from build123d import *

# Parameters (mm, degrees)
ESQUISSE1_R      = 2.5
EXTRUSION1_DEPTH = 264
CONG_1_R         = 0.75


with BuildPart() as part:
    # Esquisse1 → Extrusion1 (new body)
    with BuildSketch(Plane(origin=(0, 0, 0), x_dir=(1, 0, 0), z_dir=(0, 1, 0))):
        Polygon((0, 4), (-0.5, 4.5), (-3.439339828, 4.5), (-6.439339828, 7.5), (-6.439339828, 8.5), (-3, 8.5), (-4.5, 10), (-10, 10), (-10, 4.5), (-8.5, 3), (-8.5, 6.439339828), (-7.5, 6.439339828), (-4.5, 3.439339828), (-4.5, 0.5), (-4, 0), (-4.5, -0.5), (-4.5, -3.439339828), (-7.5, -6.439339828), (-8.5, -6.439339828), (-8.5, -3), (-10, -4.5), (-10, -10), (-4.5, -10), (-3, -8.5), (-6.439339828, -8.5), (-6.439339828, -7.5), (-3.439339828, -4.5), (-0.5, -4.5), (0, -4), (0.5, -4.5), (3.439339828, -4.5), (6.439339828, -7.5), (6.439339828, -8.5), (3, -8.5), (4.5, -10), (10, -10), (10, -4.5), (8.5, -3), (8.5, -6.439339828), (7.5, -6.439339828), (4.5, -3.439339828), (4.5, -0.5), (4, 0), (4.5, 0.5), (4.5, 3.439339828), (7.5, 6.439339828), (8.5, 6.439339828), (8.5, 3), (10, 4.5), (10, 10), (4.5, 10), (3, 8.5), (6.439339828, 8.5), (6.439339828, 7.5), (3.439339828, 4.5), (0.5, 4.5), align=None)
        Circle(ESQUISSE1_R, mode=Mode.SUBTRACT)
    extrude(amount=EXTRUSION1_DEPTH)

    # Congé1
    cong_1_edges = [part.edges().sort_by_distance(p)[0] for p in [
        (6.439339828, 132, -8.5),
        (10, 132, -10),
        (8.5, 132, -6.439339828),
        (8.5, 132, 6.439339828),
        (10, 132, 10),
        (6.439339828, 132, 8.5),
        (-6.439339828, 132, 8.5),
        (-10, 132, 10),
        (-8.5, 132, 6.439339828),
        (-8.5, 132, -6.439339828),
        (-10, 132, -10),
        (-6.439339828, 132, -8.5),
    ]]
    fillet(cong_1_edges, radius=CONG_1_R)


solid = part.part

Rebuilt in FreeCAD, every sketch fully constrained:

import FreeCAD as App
import Part
import Sketcher
Q = App.Units.Quantity


def edges_at(feature, points):
    """Names of the edges that pass closest to the given points."""
    edges = feature.Shape.Edges
    near = lambda p: min(range(len(edges)), key=lambda i: edges[i].distToShape(Part.Vertex(*p))[0])
    return sorted({f"Edge{near(p) + 1}" for p in points})


def add_polygon(sketch, points):
    """Adds a closed chain of lines whose ends are joined by coincident constraints."""
    first, n = sketch.GeometryCount, len(points)
    for a, b in zip(points, points[1:] + points[:1]):
        sketch.addGeometry(Part.LineSegment(App.Vector(*a, 0), App.Vector(*b, 0)), False)
    for i in range(n):
        sketch.addConstraint(Sketcher.Constraint("Coincident", first + i, 2, first + (i + 1) % n, 1))

doc = App.newDocument("Part")
body = doc.addObject("PartDesign::Body", "Body")

# Sketch on XZ plane
sketch1 = body.newObject("Sketcher::SketchObject", "Sketch")
sketch1.AttachmentSupport = (doc.getObject("XZ_Plane"), [""])
sketch1.MapMode = "FlatFace"
add_polygon(sketch1, [(0, -4), (-0.5, -4.5), (-3.4, -4.5), (-6.4, -7.5), (-6.4, -8.5), (-3, -8.5), (-4.5, -10), (-10, -10), (-10, -4.5), (-8.5, -3), (-8.5, -6.4), (-7.5, -6.4), (-4.5, -3.4), (-4.5, -0.5), (-4, 0), (-4.5, 0.5), (-4.5, 3.4), (-7.5, 6.4), (-8.5, 6.4), (-8.5, 3), (-10, 4.5), (-10, 10), (-4.5, 10), (-3, 8.5), (-6.4, 8.5), (-6.4, 7.5), (-3.4, 4.5), (-0.5, 4.5), (0, 4), (0.5, 4.5), (3.4, 4.5), (6.4, 7.5), (6.4, 8.5), (3, 8.5), (4.5, 10), (10, 10), (10, 4.5), (8.5, 3), (8.5, 6.4), (7.5, 6.4), (4.5, 3.4), (4.5, 0.5), (4, 0), (4.5, -0.5), (4.5, -3.4), (7.5, -6.4), (8.5, -6.4), (8.5, -3), (10, -4.5), (10, -10), (4.5, -10), (3, -8.5), (6.4, -8.5), (6.4, -7.5), (3.4, -4.5), (0.5, -4.5)])  # lines 0-55
sketch1.addGeometry(Part.Circle(App.Vector(0, 0, 0), App.Vector(0, 0, 1), 2.5), False)  # 56
sketch1.addConstraint(Sketcher.Constraint("Horizontal", 1))
sketch1.addConstraint(Sketcher.Constraint("Vertical", 3))
sketch1.addConstraint(Sketcher.Constraint("Horizontal", 4))
sketch1.addConstraint(Sketcher.Constraint("Horizontal", 6))
sketch1.addConstraint(Sketcher.Constraint("Vertical", 7))
sketch1.addConstraint(Sketcher.Constraint("Vertical", 9))
sketch1.addConstraint(Sketcher.Constraint("Horizontal", 10))
sketch1.addConstraint(Sketcher.Constraint("Vertical", 12))
sketch1.addConstraint(Sketcher.Constraint("Vertical", 15))
sketch1.addConstraint(Sketcher.Constraint("Horizontal", 17))
sketch1.addConstraint(Sketcher.Constraint("Vertical", 18))
sketch1.addConstraint(Sketcher.Constraint("Vertical", 20))
sketch1.addConstraint(Sketcher.Constraint("Horizontal", 21))
sketch1.addConstraint(Sketcher.Constraint("Horizontal", 23))
sketch1.addConstraint(Sketcher.Constraint("Vertical", 24))
sketch1.addConstraint(Sketcher.Constraint("Horizontal", 26))
sketch1.addConstraint(Sketcher.Constraint("Horizontal", 29))
sketch1.addConstraint(Sketcher.Constraint("Vertical", 31))
sketch1.addConstraint(Sketcher.Constraint("Horizontal", 32))
sketch1.addConstraint(Sketcher.Constraint("Horizontal", 34))
sketch1.addConstraint(Sketcher.Constraint("Vertical", 35))
sketch1.addConstraint(Sketcher.Constraint("Vertical", 37))
sketch1.addConstraint(Sketcher.Constraint("Horizontal", 38))
sketch1.addConstraint(Sketcher.Constraint("Vertical", 40))
sketch1.addConstraint(Sketcher.Constraint("Vertical", 43))
sketch1.addConstraint(Sketcher.Constraint("Horizontal", 45))
sketch1.addConstraint(Sketcher.Constraint("Vertical", 46))
sketch1.addConstraint(Sketcher.Constraint("Vertical", 48))
sketch1.addConstraint(Sketcher.Constraint("Horizontal", 49))
sketch1.addConstraint(Sketcher.Constraint("Horizontal", 51))
sketch1.addConstraint(Sketcher.Constraint("Vertical", 52))
sketch1.addConstraint(Sketcher.Constraint("Horizontal", 54))
sketch1.addConstraint(Sketcher.Constraint("Coincident", 56, 3, -1, 1))
sketch1.addConstraint(Sketcher.Constraint("Symmetric", 0, 2, 28, 2, -1, 1))
sketch1.addConstraint(Sketcher.Constraint("Symmetric", 2, 2, 30, 2, -1, 1))
sketch1.addConstraint(Sketcher.Constraint("Symmetric", 4, 2, 32, 2, -1, 1))
sketch1.addConstraint(Sketcher.Constraint("Symmetric", 5, 2, 33, 2, -1, 1))
sketch1.addConstraint(Sketcher.Constraint("Symmetric", 7, 2, 35, 2, -1, 1))
sketch1.addConstraint(Sketcher.Constraint("Symmetric", 8, 2, 36, 2, -1, 1))
sketch1.addConstraint(Sketcher.Constraint("Symmetric", 10, 2, 38, 2, -1, 1))
sketch1.addConstraint(Sketcher.Constraint("Symmetric", 11, 2, 39, 2, -1, 1))
sketch1.addConstraint(Sketcher.Constraint("Symmetric", 13, 2, 41, 2, -1, 1))
sketch1.addConstraint(Sketcher.Constraint("Symmetric", 14, 2, 42, 2, -1, 1))
sketch1.addConstraint(Sketcher.Constraint("Symmetric", 16, 2, 44, 2, -1, 1))
sketch1.addConstraint(Sketcher.Constraint("Symmetric", 18, 2, 46, 2, -1, 1))
sketch1.addConstraint(Sketcher.Constraint("Symmetric", 19, 2, 47, 2, -1, 1))
sketch1.addConstraint(Sketcher.Constraint("Symmetric", 21, 2, 49, 2, -1, 1))
sketch1.addConstraint(Sketcher.Constraint("Symmetric", 22, 2, 50, 2, -1, 1))
sketch1.addConstraint(Sketcher.Constraint("Symmetric", 24, 2, 52, 2, -1, 1))
sketch1.addConstraint(Sketcher.Constraint("Symmetric", 25, 2, 53, 2, -1, 1))
sketch1.addConstraint(Sketcher.Constraint("Symmetric", 27, 2, 55, 2, -1, 1))
sketch1.addConstraint(Sketcher.Constraint("Symmetric", 26, 2, 28, 2, -2))
sketch1.addConstraint(Sketcher.Constraint("Symmetric", 24, 2, 30, 2, -2))
sketch1.addConstraint(Sketcher.Constraint("Symmetric", 22, 2, 32, 2, -2))
sketch1.addConstraint(Sketcher.Constraint("Symmetric", 21, 2, 33, 2, -2))
sketch1.addConstraint(Sketcher.Constraint("Symmetric", 19, 2, 35, 2, -2))
sketch1.addConstraint(Sketcher.Constraint("Symmetric", 18, 2, 36, 2, -2))
sketch1.addConstraint(Sketcher.Constraint("Symmetric", 16, 2, 38, 2, -2))
sketch1.addConstraint(Sketcher.Constraint("Symmetric", 15, 2, 39, 2, -2))
sketch1.addConstraint(Sketcher.Constraint("PointOnObject", 13, 2, -1))
sketch1.addConstraint(Sketcher.Constraint("PointOnObject", 27, 2, -2))
sketch1.addConstraint(Sketcher.Constraint("Parallel", 0, 2))
sketch1.addConstraint(Sketcher.Constraint("Parallel", 2, 5))
sketch1.addConstraint(Sketcher.Constraint("Parallel", 5, 8))
sketch1.addConstraint(Sketcher.Constraint("Parallel", 8, 11))
sketch1.addConstraint(Sketcher.Constraint("Parallel", 11, 13))
sketch1.addConstraint(Sketcher.Constraint("Perpendicular", 13, 14))
sketch1.addConstraint(Sketcher.Constraint("Parallel", 14, 16))
sketch1.addConstraint(Sketcher.Constraint("Parallel", 22, 25))
sketch1.addConstraint(Sketcher.Constraint("Parallel", 28, 30))
sketch1.addConstraint(Sketcher.Constraint("Parallel", 39, 41))
sketch1.addConstraint(Sketcher.Constraint("Parallel", 42, 44))
sketch1.addConstraint(Sketcher.Constraint("Parallel", 53, 55))
sketch1.addConstraint(Sketcher.Constraint("Horizontal", 1, 2, 7, 2))
sketch1.addConstraint(Sketcher.Constraint("Vertical", 5, 2, 11, 2))
sketch1.addConstraint(Sketcher.Constraint("Equal", 45, 3))
sketch1.addConstraint(Sketcher.Constraint("Equal", 49, 7))
sketch1.addConstraint(Sketcher.Constraint("Equal", 51, 9))
sketch1.addConstraint(Sketcher.Constraint("Equal", 54, 12))
sketch1.addConstraint(Sketcher.Constraint("Equal", 5, 8))
sketch1.addConstraint(Sketcher.Constraint("Equal", 0, 13))
sketch1.addConstraint(Sketcher.Constraint("Diameter", 56, Q("5 mm")))
sketch1.addConstraint(Sketcher.Constraint("DistanceX", 10, 1, 10, 2, Q("1 mm")))
sketch1.addConstraint(Sketcher.Constraint("DistanceX", 6, 2, 6, 1, Q("5.5 mm")))
sketch1.addConstraint(Sketcher.Constraint("DistanceX", 4, 2, -1, 1, Q("3 mm")))
sketch1.addConstraint(Sketcher.Constraint("DistanceY", 5, 2, -1, 1, Q("10 mm")))
sketch1.addConstraint(Sketcher.Constraint("DistanceX", 13, 2, -1, 1, Q("4 mm")))
sketch1.addConstraint(Sketcher.Constraint("DistanceX", 1, 2, 1, 1, Q("2.93934 mm")))
pad1 = body.newObject("PartDesign::Pad", "Pad")
pad1.Profile = sketch1
pad1.Length = 264
pad1.Reversed = True
doc.recompute()

fillet = body.newObject("PartDesign::Fillet", "Fillet")
fillet.Base = (pad1, edges_at(pad1, [
    (6.439, 132, -8.5),
    (10, 132, -10),
    (8.5, 132, -6.439),
    (8.5, 132, 6.439),
    (10, 132, 10),
    (6.439, 132, 8.5),
    (-6.439, 132, 8.5),
    (-10, 132, 10),
    (-8.5, 132, 6.439),
    (-8.5, 132, -6.439),
    (-10, 132, -10),
    (-6.439, 132, -8.5),
]))
fillet.Radius = 0.75

doc.recompute()
